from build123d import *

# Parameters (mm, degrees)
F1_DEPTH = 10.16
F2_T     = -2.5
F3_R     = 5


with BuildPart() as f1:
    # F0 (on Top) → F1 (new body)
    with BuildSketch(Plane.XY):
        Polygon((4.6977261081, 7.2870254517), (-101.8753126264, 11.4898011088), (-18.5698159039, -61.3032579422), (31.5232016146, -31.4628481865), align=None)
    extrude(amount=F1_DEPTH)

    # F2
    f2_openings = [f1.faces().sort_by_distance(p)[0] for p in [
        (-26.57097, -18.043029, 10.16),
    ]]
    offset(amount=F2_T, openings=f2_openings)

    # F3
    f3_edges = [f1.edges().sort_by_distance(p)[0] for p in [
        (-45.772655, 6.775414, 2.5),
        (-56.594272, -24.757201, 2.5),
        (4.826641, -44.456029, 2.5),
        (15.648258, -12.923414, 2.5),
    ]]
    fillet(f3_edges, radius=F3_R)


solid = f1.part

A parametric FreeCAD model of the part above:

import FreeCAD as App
import Part
import Sketcher

V = App.Vector


def edges_at(feature, points):
    """Names of the edges that pass closest to the given points."""
    edges = feature.Shape.Edges
    near = lambda p: min(range(len(edges)), key=lambda i: edges[i].distToShape(Part.Vertex(*p))[0])
    return sorted({f"Edge{near(p) + 1}" for p in points})


def faces_at(feature, points):
    """Names of the faces that lie closest to the given points."""
    faces = feature.Shape.Faces
    near = lambda p: min(range(len(faces)), key=lambda i: faces[i].distToShape(Part.Vertex(*p))[0])
    return sorted({f"Face{near(p) + 1}" for p in points})


def add_polygon(sketch, points):
    """Adds a closed chain of lines whose ends are joined by coincident constraints."""
    first, n = sketch.GeometryCount, len(points)
    for a, b in zip(points, points[1:] + points[:1]):
        sketch.addGeometry(Part.LineSegment(App.Vector(*a, 0), App.Vector(*b, 0)), False)
    for i in range(n):
        sketch.addConstraint(Sketcher.Constraint("Coincident", first + i, 2, first + (i + 1) % n, 1))

doc = App.newDocument("Part")
body = doc.addObject("PartDesign::Body", "Body")

# Sketch on XY plane
sketch1 = body.newObject("Sketcher::SketchObject", "Sketch")
sketch1.AttachmentSupport = (doc.getObject("XY_Plane"), [""])
sketch1.MapMode = "FlatFace"
add_polygon(sketch1, [(5, 7), (-102, 11), (-19, -61), (32, -31)])  # lines 0-3
sketch1.addConstraint([
    Sketcher.Constraint("DistanceY", -1, 1, 0, 2, 11.489801),
    Sketcher.Constraint("DistanceX", -1, 1, 2, 2, 31.523202),
    Sketcher.Constraint("Distance", 3, 47.129172),
    Sketcher.Constraint("DistanceY", 2, 2, -1, 1, 31.462848),
    Sketcher.Constraint("DistanceY", 1, 2, 0, 2, 72.793059),
    Sketcher.Constraint("DistanceX", 0, 2, 3, 2, 106.573039),
    Sketcher.Constraint("Distance", 0, 106.655876),
    Sketcher.Constraint("Distance", 1, 110.628365),
])
pad1 = body.newObject("PartDesign::Pad", "Pad")
pad1.Profile = sketch1
pad1.Length = 10.16
doc.recompute()

thickness = body.newObject("PartDesign::Thickness", "Thickness")
thickness.Base = (pad1, faces_at(pad1, [(-35.176, -24.907, 10.16)]))
thickness.Value = 2.5
thickness.Reversed = True
thickness.Join = "Arc"
doc.recompute()

fillet = body.newObject("PartDesign::Fillet", "Fillet")
fillet.Base = (thickness, edges_at(thickness, [
    (-45.773, 6.775, 2.5),
    (-56.594, -24.757, 2.5),
    (4.827, -44.456, 2.5),
    (15.648, -12.923, 2.5),
]))
fillet.Radius = 5

doc.recompute()
